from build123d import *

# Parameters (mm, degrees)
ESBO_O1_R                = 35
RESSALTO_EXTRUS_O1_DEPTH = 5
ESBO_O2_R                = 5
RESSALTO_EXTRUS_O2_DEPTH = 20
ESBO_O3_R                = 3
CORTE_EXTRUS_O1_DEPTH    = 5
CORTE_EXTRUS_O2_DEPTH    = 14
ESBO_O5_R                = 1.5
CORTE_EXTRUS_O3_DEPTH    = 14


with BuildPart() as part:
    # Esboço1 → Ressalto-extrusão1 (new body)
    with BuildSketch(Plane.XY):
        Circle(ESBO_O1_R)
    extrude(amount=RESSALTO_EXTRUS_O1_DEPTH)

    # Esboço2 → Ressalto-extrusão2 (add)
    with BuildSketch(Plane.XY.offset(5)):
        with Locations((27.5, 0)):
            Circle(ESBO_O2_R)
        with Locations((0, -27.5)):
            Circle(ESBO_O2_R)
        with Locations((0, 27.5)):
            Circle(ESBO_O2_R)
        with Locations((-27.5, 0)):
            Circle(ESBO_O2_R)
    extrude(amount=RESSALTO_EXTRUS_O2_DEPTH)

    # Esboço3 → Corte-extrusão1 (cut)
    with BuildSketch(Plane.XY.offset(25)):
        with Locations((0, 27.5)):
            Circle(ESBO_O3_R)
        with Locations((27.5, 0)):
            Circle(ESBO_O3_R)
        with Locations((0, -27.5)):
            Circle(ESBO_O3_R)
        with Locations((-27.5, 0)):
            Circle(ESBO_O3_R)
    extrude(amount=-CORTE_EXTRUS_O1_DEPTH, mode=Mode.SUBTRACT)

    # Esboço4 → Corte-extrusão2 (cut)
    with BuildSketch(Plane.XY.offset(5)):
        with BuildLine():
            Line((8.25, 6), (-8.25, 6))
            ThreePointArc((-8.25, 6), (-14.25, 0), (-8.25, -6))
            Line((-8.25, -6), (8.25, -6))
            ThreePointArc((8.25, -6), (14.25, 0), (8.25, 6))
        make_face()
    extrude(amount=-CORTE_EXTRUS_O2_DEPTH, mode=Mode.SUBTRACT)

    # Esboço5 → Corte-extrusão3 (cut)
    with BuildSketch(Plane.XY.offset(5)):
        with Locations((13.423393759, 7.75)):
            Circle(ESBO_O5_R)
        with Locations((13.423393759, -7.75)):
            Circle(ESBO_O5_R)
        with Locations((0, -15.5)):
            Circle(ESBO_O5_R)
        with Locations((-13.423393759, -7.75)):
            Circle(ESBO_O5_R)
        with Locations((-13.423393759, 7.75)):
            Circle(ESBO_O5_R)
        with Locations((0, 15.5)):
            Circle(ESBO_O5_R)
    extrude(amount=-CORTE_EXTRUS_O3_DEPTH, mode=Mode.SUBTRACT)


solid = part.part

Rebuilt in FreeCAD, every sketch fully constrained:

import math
import FreeCAD as App
import Part
import Sketcher

V = App.Vector
Q = App.Units.Quantity

doc = App.newDocument("Part")
params = doc.addObject("Spreadsheet::Sheet", "Params")
for row, (alias, value) in enumerate([
    ("sketch1_diameter", "70 mm"),
    ("pad1_length", "5 mm"),
    ("sketch2_diameter", "10 mm"),
    ("pad2_length", "20 mm"),
    ("sketch3_diameter", "6 mm"),
    ("pocket1_length", "5 mm"),
    ("sketch4_radius", "6 mm"),
    ("sketch4_width", "16.5 mm"),
    ("pocket2_length", "14 mm"),
    ("sketch5_diameter", "3 mm"),
    ("pocket3_length", "14 mm"),
], start=1):
    params.set(f"A{row}", alias)
    params.set(f"B{row}", "=" + value)
    params.setAlias(f"B{row}", alias)

body = doc.addObject("PartDesign::Body", "Body")

sketch1 = body.newObject("Sketcher::SketchObject", "Sketch")
sketch1.AttachmentSupport = (doc.getObject("XY_Plane"), [""])
sketch1.MapMode = "FlatFace"
sketch1.addGeometry(Part.Circle(V(0, 0, 0), V(0, 0, 1), 35), False)
sketch1.addConstraint(Sketcher.Constraint("Coincident", 0, 3, -1, 1))
sketch1.addConstraint(Sketcher.Constraint("Diameter", 0, Q("70 mm")))
sketch1.setExpression("Constraints[1]", "Params.sketch1_diameter")
pad1 = body.newObject("PartDesign::Pad", "Pad")
pad1.Profile = sketch1
pad1.setExpression("Length", "Params.pad1_length")

sketch2 = body.newObject("Sketcher::SketchObject", "Sketch001")
sketch2.AttachmentSupport = (doc.getObject("XY_Plane"), [""])
sketch2.MapMode = "FlatFace"
sketch2.AttachmentOffset = App.Placement(V(0, 0, 5), App.Rotation())
sketch2.addGeometry(Part.Circle(V(28, 0, 0), V(0, 0, 1), 5), False)
sketch2.addGeometry(Part.Circle(V(0, -28, 0), V(0, 0, 1), 5), False)
sketch2.addGeometry(Part.Circle(V(0, 28, 0), V(0, 0, 1), 5), False)
sketch2.addGeometry(Part.Circle(V(-28, 0, 0), V(0, 0, 1), 5), False)
sketch2.addConstraint(Sketcher.Constraint("Equal", 0, 1))
sketch2.addConstraint(Sketcher.Constraint("Equal", 1, 2))
sketch2.addConstraint(Sketcher.Constraint("Equal", 2, 3))
sketch2.addConstraint(Sketcher.Constraint("Symmetric", 1, 3, 2, 3, -1, 1))
sketch2.addConstraint(Sketcher.Constraint("Symmetric", 0, 3, 3, 3, -1, 1))
sketch2.addConstraint(Sketcher.Constraint("PointOnObject", 0, 3, -1))
sketch2.addConstraint(Sketcher.Constraint("PointOnObject", 1, 3, -2))
sketch2.addConstraint(Sketcher.Constraint("Diameter", 0, Q("10 mm")))
sketch2.addConstraint(Sketcher.Constraint("DistanceY", 1, 3, 2, 3, Q("55 mm")))
sketch2.addConstraint(Sketcher.Constraint("DistanceX", 3, 3, 0, 3, Q("55 mm")))
sketch2.setExpression("Constraints[7]", "Params.sketch2_diameter")
pad2 = body.newObject("PartDesign::Pad", "Pad001")
pad2.Profile = sketch2
pad2.setExpression("Length", "Params.pad2_length")

sketch3 = body.newObject("Sketcher::SketchObject", "Sketch002")
sketch3.AttachmentSupport = (doc.getObject("XY_Plane"), [""])
sketch3.MapMode = "FlatFace"
sketch3.AttachmentOffset = App.Placement(V(0, 0, 25), App.Rotation())
sketch3.addGeometry(Part.Circle(V(0, 27.5, 0), V(0, 0, 1), 3), False)
sketch3.addGeometry(Part.Circle(V(27.5, 0, 0), V(0, 0, 1), 3), False)
sketch3.addGeometry(Part.Circle(V(0, -27.5, 0), V(0, 0, 1), 3), False)
sketch3.addGeometry(Part.Circle(V(-27.5, 0, 0), V(0, 0, 1), 3), False)
sketch3.addConstraint(Sketcher.Constraint("Equal", 0, 1))
sketch3.addConstraint(Sketcher.Constraint("Equal", 1, 2))
sketch3.addConstraint(Sketcher.Constraint("Equal", 2, 3))
sketch3.addConstraint(Sketcher.Constraint("Symmetric", 0, 3, 2, 3, -1, 1))
sketch3.addConstraint(Sketcher.Constraint("Symmetric", 1, 3, 3, 3, -1, 1))
sketch3.addConstraint(Sketcher.Constraint("PointOnObject", 0, 3, -2))
sketch3.addConstraint(Sketcher.Constraint("PointOnObject", 1, 3, -1))
sketch3.addConstraint(Sketcher.Constraint("Diameter", 0, Q("6 mm")))
sketch3.addConstraint(Sketcher.Constraint("DistanceY", 2, 3, 0, 3, Q("55 mm")))
sketch3.addConstraint(Sketcher.Constraint("DistanceX", 3, 3, 1, 3, Q("55 mm")))
sketch3.setExpression("Constraints[7]", "Params.sketch3_diameter")
pocket1 = body.newObject("PartDesign::Pocket", "Pocket")
pocket1.Profile = sketch3
pocket1.setExpression("Length", "Params.pocket1_length")

sketch4 = body.newObject("Sketcher::SketchObject", "Sketch003")
sketch4.AttachmentSupport = (doc.getObject("XY_Plane"), [""])
sketch4.MapMode = "FlatFace"
sketch4.AttachmentOffset = App.Placement(V(0, 0, 5), App.Rotation())
sketch4.addGeometry(Part.LineSegment(V(8, 6, 0), V(-8, 6, 0)), False)
sketch4.addGeometry(Part.ArcOfCircle(Part.Circle(V(-8, 0, 0), V(0, 0, 1), 6), math.radians(90), math.radians(270)), False)
sketch4.addGeometry(Part.LineSegment(V(-8, -6, 0), V(8, -6, 0)), False)
sketch4.addGeometry(Part.ArcOfCircle(Part.Circle(V(8, 0, 0), V(0, 0, 1), 6), math.radians(-90), math.radians(90)), False)
sketch4.addConstraint(Sketcher.Constraint("Tangent", 0, 2, 1, 1))
sketch4.addConstraint(Sketcher.Constraint("Tangent", 1, 2, 2, 1))
sketch4.addConstraint(Sketcher.Constraint("Tangent", 2, 2, 3, 1))
sketch4.addConstraint(Sketcher.Constraint("Tangent", 3, 2, 0, 1))
sketch4.addConstraint(Sketcher.Constraint("Horizontal", 0))
sketch4.addConstraint(Sketcher.Constraint("Horizontal", 2))
sketch4.addConstraint(Sketcher.Constraint("Symmetric", 1, 3, 3, 3, -1, 1))
sketch4.addConstraint(Sketcher.Constraint("Radius", 1, Q("6 mm")))
sketch4.addConstraint(Sketcher.Constraint("DistanceX", 0, 2, 0, 1, Q("16.5 mm")))
sketch4.setExpression("Constraints[7]", "Params.sketch4_radius")
sketch4.setExpression("Constraints[8]", "Params.sketch4_width")
pocket2 = body.newObject("PartDesign::Pocket", "Pocket001")
pocket2.Profile = sketch4
pocket2.setExpression("Length", "Params.pocket2_length")

sketch5 = body.newObject("Sketcher::SketchObject", "Sketch004")
sketch5.AttachmentSupport = (doc.getObject("XY_Plane"), [""])
sketch5.MapMode = "FlatFace"
sketch5.AttachmentOffset = App.Placement(V(0, 0, 5), App.Rotation())
sketch5.addGeometry(Part.Circle(V(13.4, 7.8, 0), V(0, 0, 1), 1.5), False)
sketch5.addGeometry(Part.Circle(V(13.4, -7.8, 0), V(0, 0, 1), 1.5), False)
sketch5.addGeometry(Part.Circle(V(0, -15.5, 0), V(0, 0, 1), 1.5), False)
sketch5.addGeometry(Part.Circle(V(-13.4, -7.8, 0), V(0, 0, 1), 1.5), False)
sketch5.addGeometry(Part.Circle(V(-13.4, 7.8, 0), V(0, 0, 1), 1.5), False)
sketch5.addGeometry(Part.Circle(V(0, 15.5, 0), V(0, 0, 1), 1.5), False)
sketch5.addConstraint(Sketcher.Constraint("Equal", 0, 1))
sketch5.addConstraint(Sketcher.Constraint("Equal", 1, 2))
sketch5.addConstraint(Sketcher.Constraint("Equal", 2, 3))
sketch5.addConstraint(Sketcher.Constraint("Equal", 3, 4))
sketch5.addConstraint(Sketcher.Constraint("Equal", 4, 5))
sketch5.addConstraint(Sketcher.Constraint("Symmetric", 0, 3, 3, 3, -1, 1))
sketch5.addConstraint(Sketcher.Constraint("Symmetric", 1, 3, 4, 3, -1, 1))
sketch5.addConstraint(Sketcher.Constraint("Symmetric", 2, 3, 5, 3, -1, 1))
sketch5.addConstraint(Sketcher.Constraint("Symmetric", 1, 3, 3, 3, -2))
sketch5.addConstraint(Sketcher.Constraint("PointOnObject", 2, 3, -2))
sketch5.addConstraint(Sketcher.Constraint("Diameter", 0, Q("3 mm")))
sketch5.addConstraint(Sketcher.Constraint("DistanceY", 2, 3, 5, 3, Q("31 mm")))
sketch5.addConstraint(Sketcher.Constraint("DistanceY", 1, 3, 0, 3, Q("15.5 mm")))
sketch5.addConstraint(Sketcher.Constraint("DistanceX", -1, 1, 0, 3, Q("13.423394 mm")))
sketch5.setExpression("Constraints[10]", "Params.sketch5_diameter")
pocket3 = body.newObject("PartDesign::Pocket", "Pocket002")
pocket3.Profile = sketch5
pocket3.setExpression("Length", "Params.pocket3_length")

doc.recompute()
